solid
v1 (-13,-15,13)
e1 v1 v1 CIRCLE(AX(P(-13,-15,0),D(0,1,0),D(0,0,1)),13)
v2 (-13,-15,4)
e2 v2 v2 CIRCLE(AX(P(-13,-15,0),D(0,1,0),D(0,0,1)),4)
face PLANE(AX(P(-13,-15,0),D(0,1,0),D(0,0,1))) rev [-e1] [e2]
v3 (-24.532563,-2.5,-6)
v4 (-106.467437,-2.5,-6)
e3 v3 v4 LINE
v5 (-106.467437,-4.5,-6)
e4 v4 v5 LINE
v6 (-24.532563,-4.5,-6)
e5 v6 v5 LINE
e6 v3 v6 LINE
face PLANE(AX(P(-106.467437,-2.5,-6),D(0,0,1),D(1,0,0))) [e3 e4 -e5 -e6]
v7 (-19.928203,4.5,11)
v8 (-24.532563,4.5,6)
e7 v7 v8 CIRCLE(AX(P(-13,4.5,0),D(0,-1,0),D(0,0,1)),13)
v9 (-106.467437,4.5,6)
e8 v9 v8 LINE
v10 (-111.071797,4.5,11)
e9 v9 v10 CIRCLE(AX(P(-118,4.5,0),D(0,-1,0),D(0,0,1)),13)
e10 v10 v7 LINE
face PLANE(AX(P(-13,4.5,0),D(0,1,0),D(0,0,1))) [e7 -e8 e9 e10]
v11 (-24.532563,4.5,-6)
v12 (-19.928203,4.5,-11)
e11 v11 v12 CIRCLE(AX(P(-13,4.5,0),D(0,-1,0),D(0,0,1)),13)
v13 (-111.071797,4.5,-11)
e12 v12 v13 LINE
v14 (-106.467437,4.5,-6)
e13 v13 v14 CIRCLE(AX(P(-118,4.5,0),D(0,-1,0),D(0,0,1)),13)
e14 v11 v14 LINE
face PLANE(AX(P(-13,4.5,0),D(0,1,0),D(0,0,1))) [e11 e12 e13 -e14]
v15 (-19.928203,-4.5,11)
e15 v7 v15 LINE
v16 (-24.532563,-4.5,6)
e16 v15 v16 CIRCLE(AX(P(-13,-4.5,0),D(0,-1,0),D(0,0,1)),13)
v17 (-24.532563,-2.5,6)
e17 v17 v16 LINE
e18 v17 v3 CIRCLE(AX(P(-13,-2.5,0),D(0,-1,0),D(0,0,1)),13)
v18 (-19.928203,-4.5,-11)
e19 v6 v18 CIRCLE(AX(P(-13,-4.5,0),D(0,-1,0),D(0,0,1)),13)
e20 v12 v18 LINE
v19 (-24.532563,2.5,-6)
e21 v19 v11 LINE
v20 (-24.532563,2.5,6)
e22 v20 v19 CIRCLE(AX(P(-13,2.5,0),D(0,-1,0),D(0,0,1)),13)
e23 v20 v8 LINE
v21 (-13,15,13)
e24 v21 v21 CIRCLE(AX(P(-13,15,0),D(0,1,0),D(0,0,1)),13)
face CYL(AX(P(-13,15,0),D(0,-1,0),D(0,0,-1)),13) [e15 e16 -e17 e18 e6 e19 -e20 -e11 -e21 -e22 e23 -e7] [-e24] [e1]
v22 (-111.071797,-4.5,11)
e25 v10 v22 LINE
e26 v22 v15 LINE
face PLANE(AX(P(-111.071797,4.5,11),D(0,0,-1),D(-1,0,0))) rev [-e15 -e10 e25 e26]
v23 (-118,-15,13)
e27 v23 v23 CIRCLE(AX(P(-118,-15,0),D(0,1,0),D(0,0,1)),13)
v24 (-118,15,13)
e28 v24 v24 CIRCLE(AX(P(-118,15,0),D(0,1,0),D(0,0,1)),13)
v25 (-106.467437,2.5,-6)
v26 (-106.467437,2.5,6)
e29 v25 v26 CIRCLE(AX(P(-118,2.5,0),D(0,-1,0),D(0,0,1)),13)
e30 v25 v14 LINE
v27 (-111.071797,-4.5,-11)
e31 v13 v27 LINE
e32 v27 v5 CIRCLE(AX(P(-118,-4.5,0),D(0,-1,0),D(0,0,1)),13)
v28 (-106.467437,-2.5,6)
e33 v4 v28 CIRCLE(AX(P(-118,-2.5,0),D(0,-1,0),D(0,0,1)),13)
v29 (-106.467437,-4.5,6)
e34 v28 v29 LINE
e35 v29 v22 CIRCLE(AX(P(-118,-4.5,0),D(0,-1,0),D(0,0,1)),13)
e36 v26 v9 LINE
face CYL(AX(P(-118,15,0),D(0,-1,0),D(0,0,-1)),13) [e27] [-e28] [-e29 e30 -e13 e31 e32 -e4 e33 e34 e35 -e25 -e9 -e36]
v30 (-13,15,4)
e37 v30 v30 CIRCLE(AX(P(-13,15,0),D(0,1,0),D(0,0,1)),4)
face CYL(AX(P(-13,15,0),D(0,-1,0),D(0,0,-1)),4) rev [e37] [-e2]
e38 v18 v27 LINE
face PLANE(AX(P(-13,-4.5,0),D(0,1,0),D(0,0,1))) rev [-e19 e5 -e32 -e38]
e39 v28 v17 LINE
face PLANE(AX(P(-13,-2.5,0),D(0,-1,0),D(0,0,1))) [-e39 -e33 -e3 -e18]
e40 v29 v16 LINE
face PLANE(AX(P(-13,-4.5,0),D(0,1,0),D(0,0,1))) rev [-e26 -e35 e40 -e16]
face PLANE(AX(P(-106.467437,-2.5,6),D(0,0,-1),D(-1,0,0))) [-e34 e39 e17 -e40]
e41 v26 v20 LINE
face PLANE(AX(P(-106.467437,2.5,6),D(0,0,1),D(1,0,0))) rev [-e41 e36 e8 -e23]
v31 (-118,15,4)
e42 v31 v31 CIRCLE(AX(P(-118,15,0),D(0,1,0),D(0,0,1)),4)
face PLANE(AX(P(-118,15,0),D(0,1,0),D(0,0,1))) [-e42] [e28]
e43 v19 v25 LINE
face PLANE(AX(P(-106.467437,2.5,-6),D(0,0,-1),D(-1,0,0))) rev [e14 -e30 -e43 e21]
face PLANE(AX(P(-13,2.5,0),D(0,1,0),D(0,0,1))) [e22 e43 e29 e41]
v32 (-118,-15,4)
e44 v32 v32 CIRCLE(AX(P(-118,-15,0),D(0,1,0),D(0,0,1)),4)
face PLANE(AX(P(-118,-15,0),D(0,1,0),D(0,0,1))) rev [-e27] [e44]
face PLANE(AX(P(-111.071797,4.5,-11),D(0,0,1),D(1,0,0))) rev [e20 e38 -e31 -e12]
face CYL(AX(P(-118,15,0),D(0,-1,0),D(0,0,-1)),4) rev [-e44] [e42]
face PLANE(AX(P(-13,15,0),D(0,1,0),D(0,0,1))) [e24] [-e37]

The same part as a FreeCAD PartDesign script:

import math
import FreeCAD as App
import Part
import Sketcher

doc = App.newDocument("Part")
params = doc.addObject("Spreadsheet::Sheet", "Params")
for row, (alias, value) in enumerate([
    ("sketch1_diameter", "26 mm"),
    ("sketch1_diameter2", "8 mm"),
    ("pad1_length", "30 mm"),
    ("sketch2_diameter", "26 mm"),
    ("sketch2_diameter2", "8 mm"),
    ("pad2_length", "30 mm"),
    ("sketch3_radius", "13 mm"),
    ("pad3_length", "9 mm"),
    ("sketch4_radius", "13 mm"),
    ("pocket1_length", "2 mm"),
], start=1):
    params.set(f"A{row}", alias)
    params.set(f"B{row}", "=" + value)
    params.setAlias(f"B{row}", alias)

body = doc.addObject("PartDesign::Body", "Body")

# Sketch on XZ plane
sketch1 = doc.addObject("Sketcher::SketchObject", "Sketch")
body.addObject(sketch1)
sketch1.AttachmentSupport = (doc.XZ_Plane, [""])
sketch1.MapMode = "FlatFace"
sketch1.addGeometry([
    Part.Circle(App.Vector(-118, 0, 0), App.Vector(0, 0, 1), 13),
    Part.Circle(App.Vector(-118, 0, 0), App.Vector(0, 0, 1), 4),
], False)
sketch1.addConstraint([
    Sketcher.Constraint("Coincident", 1, 3, 0, 3),
    Sketcher.Constraint("PointOnObject", 0, 3, -1),
    Sketcher.Constraint("Diameter", 0, 26.0),
    Sketcher.Constraint("Diameter", 1, 8.0),
    Sketcher.Constraint("DistanceX", 0, 3, -1, 1, 118.0),
])
sketch1.setExpression("Constraints[2]", "Params.sketch1_diameter")
sketch1.setExpression("Constraints[3]", "Params.sketch1_diameter2")
pad1 = doc.addObject("PartDesign::Pad", "Pad")
body.addObject(pad1)
pad1.Profile = sketch1
pad1.setExpression("Length", "Params.pad1_length")
pad1.Midplane = True
body2 = doc.addObject("PartDesign::Body", "Body001")

# Sketch on XZ plane
sketch2 = doc.addObject("Sketcher::SketchObject", "Sketch001")
body2.addObject(sketch2)
sketch2.AttachmentSupport = (doc.getObject("XZ_Plane001"), [""])
sketch2.MapMode = "FlatFace"
sketch2.addGeometry([
    Part.Circle(App.Vector(-13, 0, 0), App.Vector(0, 0, 1), 13),
    Part.Circle(App.Vector(-13, 0, 0), App.Vector(0, 0, 1), 4),
], False)
sketch2.addConstraint([
    Sketcher.Constraint("Coincident", 1, 3, 0, 3),
    Sketcher.Constraint("PointOnObject", 0, 3, -1),
    Sketcher.Constraint("Diameter", 0, 26.0),
    Sketcher.Constraint("Diameter", 1, 8.0),
    Sketcher.Constraint("DistanceX", 0, 3, -1, 1, 13.0),
])
sketch2.setExpression("Constraints[2]", "Params.sketch2_diameter")
sketch2.setExpression("Constraints[3]", "Params.sketch2_diameter2")
pad2 = doc.addObject("PartDesign::Pad", "Pad001")
body2.addObject(pad2)
pad2.Profile = sketch2
pad2.setExpression("Length", "Params.pad2_length")
pad2.Midplane = True
body.AllowCompound = True
doc.recompute()

boolean = doc.addObject("PartDesign::Boolean", "Boolean")
body.addObject(boolean)
boolean.Type = "Fuse"
boolean.addObjects([body2])

# Sketch on XZ plane
sketch3 = doc.addObject("Sketcher::SketchObject", "Sketch002")
body.addObject(sketch3)
sketch3.AttachmentSupport = (doc.XZ_Plane, [""])
sketch3.MapMode = "FlatFace"
sketch3.addGeometry([
    Part.LineSegment(App.Vector(-19.928203, -11, 0), App.Vector(-111.071797, -11, 0)),
    Part.ArcOfCircle(Part.Circle(App.Vector(-118, 0, 0), App.Vector(0, 0, 1), 13), math.radians(-57.795772), math.radians(57.795772)),
    Part.LineSegment(App.Vector(-111.071797, 11, 0), App.Vector(-19.928203, 11, 0)),
    Part.ArcOfCircle(Part.Circle(App.Vector(-13, 0, 0), App.Vector(0, 0, 1), 13), math.radians(122.204228), math.radians(237.795772)),
], False)
sketch3.addConstraint([
    Sketcher.Constraint("Coincident", 0, 2, 1, 1),
    Sketcher.Constraint("Coincident", 1, 2, 2, 1),
    Sketcher.Constraint("Coincident", 2, 2, 3, 1),
    Sketcher.Constraint("Coincident", 3, 2, 0, 1),
    Sketcher.Constraint("Horizontal", 0),
    Sketcher.Constraint("Horizontal", 2),
    Sketcher.Constraint("Equal", 1, 3),
    Sketcher.Constraint("Symmetric", 0, 2, 1, 2, -1),
    Sketcher.Constraint("PointOnObject", 3, 3, -1),
    Sketcher.Constraint("Radius", 1, 13.0),
    Sketcher.Constraint("DistanceX", 1, 3, -1, 1, 118.0),
    Sketcher.Constraint("DistanceX", 3, 3, -1, 1, 13.0),
    Sketcher.Constraint("DistanceY", 0, 2, -1, 1, 11.0),
])
sketch3.setExpression("Constraints[9]", "Params.sketch3_radius")
pad3 = doc.addObject("PartDesign::Pad", "Pad002")
body.addObject(pad3)
pad3.Profile = sketch3
pad3.setExpression("Length", "Params.pad3_length")
pad3.Midplane = True

# Sketch on XZ plane
sketch4 = doc.addObject("Sketcher::SketchObject", "Sketch003")
body.addObject(sketch4)
sketch4.AttachmentSupport = (doc.XZ_Plane, [""])
sketch4.MapMode = "FlatFace"
sketch4.AttachmentOffset = App.Placement(App.Vector(0, 0, -4.5), App.Rotation())
sketch4.addGeometry([
    Part.LineSegment(App.Vector(-24.532563, -6, 0), App.Vector(-106.467437, -6, 0)),
    Part.ArcOfCircle(Part.Circle(App.Vector(-118, 0, 0), App.Vector(0, 0, 1), 13), math.radians(-27.486426), math.radians(27.486426)),
    Part.LineSegment(App.Vector(-106.467437, 6, 0), App.Vector(-24.532563, 6, 0)),
    Part.ArcOfCircle(Part.Circle(App.Vector(-13, 0, 0), App.Vector(0, 0, 1), 13), math.radians(152.513574), math.radians(207.486426)),
], False)
sketch4.addConstraint([
    Sketcher.Constraint("Coincident", 0, 2, 1, 1),
    Sketcher.Constraint("Coincident", 1, 2, 2, 1),
    Sketcher.Constraint("Coincident", 2, 2, 3, 1),
    Sketcher.Constraint("Coincident", 3, 2, 0, 1),
    Sketcher.Constraint("Horizontal", 0),
    Sketcher.Constraint("Horizontal", 2),
    Sketcher.Constraint("Equal", 1, 3),
    Sketcher.Constraint("Symmetric", 0, 2, 1, 2, -1),
    Sketcher.Constraint("PointOnObject", 3, 3, -1),
    Sketcher.Constraint("Radius", 1, 13.0),
    Sketcher.Constraint("DistanceX", 1, 3, -1, 1, 118.0),
    Sketcher.Constraint("DistanceX", 3, 3, -1, 1, 13.0),
    Sketcher.Constraint("DistanceY", 0, 2, -1, 1, 6.0),
])
sketch4.setExpression("Constraints[9]", "Params.sketch4_radius")
pocket1 = doc.addObject("PartDesign::Pocket", "Pocket")
body.addObject(pocket1)
pocket1.Profile = sketch4
pocket1.setExpression("Length", "Params.pocket1_length")
pocket1.Reversed = True
doc.recompute()

mirrored = doc.addObject("PartDesign::Mirrored", "Mirrored")
body.addObject(mirrored)
mirrored.Originals = [pocket1]
mirrored.MirrorPlane = (doc.XZ_Plane, [""])
body.Tip = mirrored

doc.recompute()
